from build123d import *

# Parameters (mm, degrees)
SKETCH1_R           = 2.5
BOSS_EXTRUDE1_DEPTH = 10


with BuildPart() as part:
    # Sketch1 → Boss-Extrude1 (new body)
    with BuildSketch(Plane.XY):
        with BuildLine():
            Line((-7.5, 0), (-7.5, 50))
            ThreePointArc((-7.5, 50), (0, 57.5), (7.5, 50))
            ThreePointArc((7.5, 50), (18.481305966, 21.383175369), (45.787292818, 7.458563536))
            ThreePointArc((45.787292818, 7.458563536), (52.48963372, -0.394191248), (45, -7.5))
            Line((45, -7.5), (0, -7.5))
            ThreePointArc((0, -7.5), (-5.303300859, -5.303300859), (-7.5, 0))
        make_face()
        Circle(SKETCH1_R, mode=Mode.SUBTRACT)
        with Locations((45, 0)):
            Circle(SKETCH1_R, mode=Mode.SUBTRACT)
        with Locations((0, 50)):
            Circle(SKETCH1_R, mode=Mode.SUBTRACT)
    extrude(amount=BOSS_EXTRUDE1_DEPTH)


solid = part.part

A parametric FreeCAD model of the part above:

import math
import FreeCAD as App
import Part
import Sketcher

V = App.Vector

doc = App.newDocument("Part")
body = doc.addObject("PartDesign::Body", "Body")

# Sketch on XY plane
sketch1 = body.newObject("Sketcher::SketchObject", "Sketch")
sketch1.AttachmentSupport = (doc.getObject("XY_Plane"), [""])
sketch1.MapMode = "FlatFace"
sketch1.addGeometry(Part.LineSegment(V(-7.5, 50, 0), V(-7.5, 0, 0)), False)
sketch1.addGeometry(Part.ArcOfCircle(Part.Circle(V(0, 0, 0), V(0, 0, 1), 7.5), math.radians(180), math.radians(270)), False)
sketch1.addGeometry(Part.LineSegment(V(0, -7.5, 0), V(45, -7.5, 0)), False)
sketch1.addGeometry(Part.ArcOfCircle(Part.Circle(V(45, 0, 0), V(0, 0, 1), 7.5), math.radians(-90), math.radians(84)), False)
sketch1.addGeometry(Part.ArcOfCircle(Part.Circle(V(50.3, 50, 0), V(0, 0, 1), 42.8), math.radians(180), math.radians(264)), False)
sketch1.addGeometry(Part.ArcOfCircle(Part.Circle(V(0, 50, 0), V(0, 0, 1), 7.5), math.radians(0), math.radians(180)), False)
sketch1.addGeometry(Part.Circle(V(45, 0, 0), V(0, 0, 1), 2.5), False)
sketch1.addGeometry(Part.Circle(V(0, 0, 0), V(0, 0, 1), 2.5), False)
sketch1.addGeometry(Part.Circle(V(0, 50, 0), V(0, 0, 1), 2.5), False)
sketch1.addConstraint(Sketcher.Constraint("Tangent", 0, 2, 1, 1))
sketch1.addConstraint(Sketcher.Constraint("Tangent", 1, 2, 2, 1))
sketch1.addConstraint(Sketcher.Constraint("Tangent", 2, 2, 3, 1))
sketch1.addConstraint(Sketcher.Constraint("Tangent", 3, 2, 4, 2))
sketch1.addConstraint(Sketcher.Constraint("Tangent", 4, 1, 5, 1))
sketch1.addConstraint(Sketcher.Constraint("Tangent", 5, 2, 0, 1))
sketch1.addConstraint(Sketcher.Constraint("Vertical", 0))
sketch1.addConstraint(Sketcher.Constraint("Horizontal", 2))
sketch1.addConstraint(Sketcher.Constraint("Coincident", 1, 3, -1, 1))
sketch1.addConstraint(Sketcher.Constraint("Coincident", 7, 3, -1, 1))
sketch1.addConstraint(Sketcher.Constraint("Coincident", 6, 3, 3, 3))
sketch1.addConstraint(Sketcher.Constraint("Coincident", 8, 3, 5, 3))
sketch1.addConstraint(Sketcher.Constraint("Equal", 1, 3))
sketch1.addConstraint(Sketcher.Constraint("Equal", 3, 5))
sketch1.addConstraint(Sketcher.Constraint("Equal", 6, 7))
sketch1.addConstraint(Sketcher.Constraint("Equal", 7, 8))
sketch1.addConstraint(Sketcher.Constraint("Horizontal", 4, 3, 5, 3))
sketch1.addConstraint(Sketcher.Constraint("Diameter", 6, 5.0))
sketch1.addConstraint(Sketcher.Constraint("Radius", 1, 7.5))
sketch1.addConstraint(Sketcher.Constraint("DistanceX", 2, 1, 2, 2, 45.0))
sketch1.addConstraint(Sketcher.Constraint("DistanceY", 0, 2, 0, 1, 50.0))
pad1 = body.newObject("PartDesign::Pad", "Pad")
pad1.Profile = sketch1
pad1.Length = 10

doc.recompute()
